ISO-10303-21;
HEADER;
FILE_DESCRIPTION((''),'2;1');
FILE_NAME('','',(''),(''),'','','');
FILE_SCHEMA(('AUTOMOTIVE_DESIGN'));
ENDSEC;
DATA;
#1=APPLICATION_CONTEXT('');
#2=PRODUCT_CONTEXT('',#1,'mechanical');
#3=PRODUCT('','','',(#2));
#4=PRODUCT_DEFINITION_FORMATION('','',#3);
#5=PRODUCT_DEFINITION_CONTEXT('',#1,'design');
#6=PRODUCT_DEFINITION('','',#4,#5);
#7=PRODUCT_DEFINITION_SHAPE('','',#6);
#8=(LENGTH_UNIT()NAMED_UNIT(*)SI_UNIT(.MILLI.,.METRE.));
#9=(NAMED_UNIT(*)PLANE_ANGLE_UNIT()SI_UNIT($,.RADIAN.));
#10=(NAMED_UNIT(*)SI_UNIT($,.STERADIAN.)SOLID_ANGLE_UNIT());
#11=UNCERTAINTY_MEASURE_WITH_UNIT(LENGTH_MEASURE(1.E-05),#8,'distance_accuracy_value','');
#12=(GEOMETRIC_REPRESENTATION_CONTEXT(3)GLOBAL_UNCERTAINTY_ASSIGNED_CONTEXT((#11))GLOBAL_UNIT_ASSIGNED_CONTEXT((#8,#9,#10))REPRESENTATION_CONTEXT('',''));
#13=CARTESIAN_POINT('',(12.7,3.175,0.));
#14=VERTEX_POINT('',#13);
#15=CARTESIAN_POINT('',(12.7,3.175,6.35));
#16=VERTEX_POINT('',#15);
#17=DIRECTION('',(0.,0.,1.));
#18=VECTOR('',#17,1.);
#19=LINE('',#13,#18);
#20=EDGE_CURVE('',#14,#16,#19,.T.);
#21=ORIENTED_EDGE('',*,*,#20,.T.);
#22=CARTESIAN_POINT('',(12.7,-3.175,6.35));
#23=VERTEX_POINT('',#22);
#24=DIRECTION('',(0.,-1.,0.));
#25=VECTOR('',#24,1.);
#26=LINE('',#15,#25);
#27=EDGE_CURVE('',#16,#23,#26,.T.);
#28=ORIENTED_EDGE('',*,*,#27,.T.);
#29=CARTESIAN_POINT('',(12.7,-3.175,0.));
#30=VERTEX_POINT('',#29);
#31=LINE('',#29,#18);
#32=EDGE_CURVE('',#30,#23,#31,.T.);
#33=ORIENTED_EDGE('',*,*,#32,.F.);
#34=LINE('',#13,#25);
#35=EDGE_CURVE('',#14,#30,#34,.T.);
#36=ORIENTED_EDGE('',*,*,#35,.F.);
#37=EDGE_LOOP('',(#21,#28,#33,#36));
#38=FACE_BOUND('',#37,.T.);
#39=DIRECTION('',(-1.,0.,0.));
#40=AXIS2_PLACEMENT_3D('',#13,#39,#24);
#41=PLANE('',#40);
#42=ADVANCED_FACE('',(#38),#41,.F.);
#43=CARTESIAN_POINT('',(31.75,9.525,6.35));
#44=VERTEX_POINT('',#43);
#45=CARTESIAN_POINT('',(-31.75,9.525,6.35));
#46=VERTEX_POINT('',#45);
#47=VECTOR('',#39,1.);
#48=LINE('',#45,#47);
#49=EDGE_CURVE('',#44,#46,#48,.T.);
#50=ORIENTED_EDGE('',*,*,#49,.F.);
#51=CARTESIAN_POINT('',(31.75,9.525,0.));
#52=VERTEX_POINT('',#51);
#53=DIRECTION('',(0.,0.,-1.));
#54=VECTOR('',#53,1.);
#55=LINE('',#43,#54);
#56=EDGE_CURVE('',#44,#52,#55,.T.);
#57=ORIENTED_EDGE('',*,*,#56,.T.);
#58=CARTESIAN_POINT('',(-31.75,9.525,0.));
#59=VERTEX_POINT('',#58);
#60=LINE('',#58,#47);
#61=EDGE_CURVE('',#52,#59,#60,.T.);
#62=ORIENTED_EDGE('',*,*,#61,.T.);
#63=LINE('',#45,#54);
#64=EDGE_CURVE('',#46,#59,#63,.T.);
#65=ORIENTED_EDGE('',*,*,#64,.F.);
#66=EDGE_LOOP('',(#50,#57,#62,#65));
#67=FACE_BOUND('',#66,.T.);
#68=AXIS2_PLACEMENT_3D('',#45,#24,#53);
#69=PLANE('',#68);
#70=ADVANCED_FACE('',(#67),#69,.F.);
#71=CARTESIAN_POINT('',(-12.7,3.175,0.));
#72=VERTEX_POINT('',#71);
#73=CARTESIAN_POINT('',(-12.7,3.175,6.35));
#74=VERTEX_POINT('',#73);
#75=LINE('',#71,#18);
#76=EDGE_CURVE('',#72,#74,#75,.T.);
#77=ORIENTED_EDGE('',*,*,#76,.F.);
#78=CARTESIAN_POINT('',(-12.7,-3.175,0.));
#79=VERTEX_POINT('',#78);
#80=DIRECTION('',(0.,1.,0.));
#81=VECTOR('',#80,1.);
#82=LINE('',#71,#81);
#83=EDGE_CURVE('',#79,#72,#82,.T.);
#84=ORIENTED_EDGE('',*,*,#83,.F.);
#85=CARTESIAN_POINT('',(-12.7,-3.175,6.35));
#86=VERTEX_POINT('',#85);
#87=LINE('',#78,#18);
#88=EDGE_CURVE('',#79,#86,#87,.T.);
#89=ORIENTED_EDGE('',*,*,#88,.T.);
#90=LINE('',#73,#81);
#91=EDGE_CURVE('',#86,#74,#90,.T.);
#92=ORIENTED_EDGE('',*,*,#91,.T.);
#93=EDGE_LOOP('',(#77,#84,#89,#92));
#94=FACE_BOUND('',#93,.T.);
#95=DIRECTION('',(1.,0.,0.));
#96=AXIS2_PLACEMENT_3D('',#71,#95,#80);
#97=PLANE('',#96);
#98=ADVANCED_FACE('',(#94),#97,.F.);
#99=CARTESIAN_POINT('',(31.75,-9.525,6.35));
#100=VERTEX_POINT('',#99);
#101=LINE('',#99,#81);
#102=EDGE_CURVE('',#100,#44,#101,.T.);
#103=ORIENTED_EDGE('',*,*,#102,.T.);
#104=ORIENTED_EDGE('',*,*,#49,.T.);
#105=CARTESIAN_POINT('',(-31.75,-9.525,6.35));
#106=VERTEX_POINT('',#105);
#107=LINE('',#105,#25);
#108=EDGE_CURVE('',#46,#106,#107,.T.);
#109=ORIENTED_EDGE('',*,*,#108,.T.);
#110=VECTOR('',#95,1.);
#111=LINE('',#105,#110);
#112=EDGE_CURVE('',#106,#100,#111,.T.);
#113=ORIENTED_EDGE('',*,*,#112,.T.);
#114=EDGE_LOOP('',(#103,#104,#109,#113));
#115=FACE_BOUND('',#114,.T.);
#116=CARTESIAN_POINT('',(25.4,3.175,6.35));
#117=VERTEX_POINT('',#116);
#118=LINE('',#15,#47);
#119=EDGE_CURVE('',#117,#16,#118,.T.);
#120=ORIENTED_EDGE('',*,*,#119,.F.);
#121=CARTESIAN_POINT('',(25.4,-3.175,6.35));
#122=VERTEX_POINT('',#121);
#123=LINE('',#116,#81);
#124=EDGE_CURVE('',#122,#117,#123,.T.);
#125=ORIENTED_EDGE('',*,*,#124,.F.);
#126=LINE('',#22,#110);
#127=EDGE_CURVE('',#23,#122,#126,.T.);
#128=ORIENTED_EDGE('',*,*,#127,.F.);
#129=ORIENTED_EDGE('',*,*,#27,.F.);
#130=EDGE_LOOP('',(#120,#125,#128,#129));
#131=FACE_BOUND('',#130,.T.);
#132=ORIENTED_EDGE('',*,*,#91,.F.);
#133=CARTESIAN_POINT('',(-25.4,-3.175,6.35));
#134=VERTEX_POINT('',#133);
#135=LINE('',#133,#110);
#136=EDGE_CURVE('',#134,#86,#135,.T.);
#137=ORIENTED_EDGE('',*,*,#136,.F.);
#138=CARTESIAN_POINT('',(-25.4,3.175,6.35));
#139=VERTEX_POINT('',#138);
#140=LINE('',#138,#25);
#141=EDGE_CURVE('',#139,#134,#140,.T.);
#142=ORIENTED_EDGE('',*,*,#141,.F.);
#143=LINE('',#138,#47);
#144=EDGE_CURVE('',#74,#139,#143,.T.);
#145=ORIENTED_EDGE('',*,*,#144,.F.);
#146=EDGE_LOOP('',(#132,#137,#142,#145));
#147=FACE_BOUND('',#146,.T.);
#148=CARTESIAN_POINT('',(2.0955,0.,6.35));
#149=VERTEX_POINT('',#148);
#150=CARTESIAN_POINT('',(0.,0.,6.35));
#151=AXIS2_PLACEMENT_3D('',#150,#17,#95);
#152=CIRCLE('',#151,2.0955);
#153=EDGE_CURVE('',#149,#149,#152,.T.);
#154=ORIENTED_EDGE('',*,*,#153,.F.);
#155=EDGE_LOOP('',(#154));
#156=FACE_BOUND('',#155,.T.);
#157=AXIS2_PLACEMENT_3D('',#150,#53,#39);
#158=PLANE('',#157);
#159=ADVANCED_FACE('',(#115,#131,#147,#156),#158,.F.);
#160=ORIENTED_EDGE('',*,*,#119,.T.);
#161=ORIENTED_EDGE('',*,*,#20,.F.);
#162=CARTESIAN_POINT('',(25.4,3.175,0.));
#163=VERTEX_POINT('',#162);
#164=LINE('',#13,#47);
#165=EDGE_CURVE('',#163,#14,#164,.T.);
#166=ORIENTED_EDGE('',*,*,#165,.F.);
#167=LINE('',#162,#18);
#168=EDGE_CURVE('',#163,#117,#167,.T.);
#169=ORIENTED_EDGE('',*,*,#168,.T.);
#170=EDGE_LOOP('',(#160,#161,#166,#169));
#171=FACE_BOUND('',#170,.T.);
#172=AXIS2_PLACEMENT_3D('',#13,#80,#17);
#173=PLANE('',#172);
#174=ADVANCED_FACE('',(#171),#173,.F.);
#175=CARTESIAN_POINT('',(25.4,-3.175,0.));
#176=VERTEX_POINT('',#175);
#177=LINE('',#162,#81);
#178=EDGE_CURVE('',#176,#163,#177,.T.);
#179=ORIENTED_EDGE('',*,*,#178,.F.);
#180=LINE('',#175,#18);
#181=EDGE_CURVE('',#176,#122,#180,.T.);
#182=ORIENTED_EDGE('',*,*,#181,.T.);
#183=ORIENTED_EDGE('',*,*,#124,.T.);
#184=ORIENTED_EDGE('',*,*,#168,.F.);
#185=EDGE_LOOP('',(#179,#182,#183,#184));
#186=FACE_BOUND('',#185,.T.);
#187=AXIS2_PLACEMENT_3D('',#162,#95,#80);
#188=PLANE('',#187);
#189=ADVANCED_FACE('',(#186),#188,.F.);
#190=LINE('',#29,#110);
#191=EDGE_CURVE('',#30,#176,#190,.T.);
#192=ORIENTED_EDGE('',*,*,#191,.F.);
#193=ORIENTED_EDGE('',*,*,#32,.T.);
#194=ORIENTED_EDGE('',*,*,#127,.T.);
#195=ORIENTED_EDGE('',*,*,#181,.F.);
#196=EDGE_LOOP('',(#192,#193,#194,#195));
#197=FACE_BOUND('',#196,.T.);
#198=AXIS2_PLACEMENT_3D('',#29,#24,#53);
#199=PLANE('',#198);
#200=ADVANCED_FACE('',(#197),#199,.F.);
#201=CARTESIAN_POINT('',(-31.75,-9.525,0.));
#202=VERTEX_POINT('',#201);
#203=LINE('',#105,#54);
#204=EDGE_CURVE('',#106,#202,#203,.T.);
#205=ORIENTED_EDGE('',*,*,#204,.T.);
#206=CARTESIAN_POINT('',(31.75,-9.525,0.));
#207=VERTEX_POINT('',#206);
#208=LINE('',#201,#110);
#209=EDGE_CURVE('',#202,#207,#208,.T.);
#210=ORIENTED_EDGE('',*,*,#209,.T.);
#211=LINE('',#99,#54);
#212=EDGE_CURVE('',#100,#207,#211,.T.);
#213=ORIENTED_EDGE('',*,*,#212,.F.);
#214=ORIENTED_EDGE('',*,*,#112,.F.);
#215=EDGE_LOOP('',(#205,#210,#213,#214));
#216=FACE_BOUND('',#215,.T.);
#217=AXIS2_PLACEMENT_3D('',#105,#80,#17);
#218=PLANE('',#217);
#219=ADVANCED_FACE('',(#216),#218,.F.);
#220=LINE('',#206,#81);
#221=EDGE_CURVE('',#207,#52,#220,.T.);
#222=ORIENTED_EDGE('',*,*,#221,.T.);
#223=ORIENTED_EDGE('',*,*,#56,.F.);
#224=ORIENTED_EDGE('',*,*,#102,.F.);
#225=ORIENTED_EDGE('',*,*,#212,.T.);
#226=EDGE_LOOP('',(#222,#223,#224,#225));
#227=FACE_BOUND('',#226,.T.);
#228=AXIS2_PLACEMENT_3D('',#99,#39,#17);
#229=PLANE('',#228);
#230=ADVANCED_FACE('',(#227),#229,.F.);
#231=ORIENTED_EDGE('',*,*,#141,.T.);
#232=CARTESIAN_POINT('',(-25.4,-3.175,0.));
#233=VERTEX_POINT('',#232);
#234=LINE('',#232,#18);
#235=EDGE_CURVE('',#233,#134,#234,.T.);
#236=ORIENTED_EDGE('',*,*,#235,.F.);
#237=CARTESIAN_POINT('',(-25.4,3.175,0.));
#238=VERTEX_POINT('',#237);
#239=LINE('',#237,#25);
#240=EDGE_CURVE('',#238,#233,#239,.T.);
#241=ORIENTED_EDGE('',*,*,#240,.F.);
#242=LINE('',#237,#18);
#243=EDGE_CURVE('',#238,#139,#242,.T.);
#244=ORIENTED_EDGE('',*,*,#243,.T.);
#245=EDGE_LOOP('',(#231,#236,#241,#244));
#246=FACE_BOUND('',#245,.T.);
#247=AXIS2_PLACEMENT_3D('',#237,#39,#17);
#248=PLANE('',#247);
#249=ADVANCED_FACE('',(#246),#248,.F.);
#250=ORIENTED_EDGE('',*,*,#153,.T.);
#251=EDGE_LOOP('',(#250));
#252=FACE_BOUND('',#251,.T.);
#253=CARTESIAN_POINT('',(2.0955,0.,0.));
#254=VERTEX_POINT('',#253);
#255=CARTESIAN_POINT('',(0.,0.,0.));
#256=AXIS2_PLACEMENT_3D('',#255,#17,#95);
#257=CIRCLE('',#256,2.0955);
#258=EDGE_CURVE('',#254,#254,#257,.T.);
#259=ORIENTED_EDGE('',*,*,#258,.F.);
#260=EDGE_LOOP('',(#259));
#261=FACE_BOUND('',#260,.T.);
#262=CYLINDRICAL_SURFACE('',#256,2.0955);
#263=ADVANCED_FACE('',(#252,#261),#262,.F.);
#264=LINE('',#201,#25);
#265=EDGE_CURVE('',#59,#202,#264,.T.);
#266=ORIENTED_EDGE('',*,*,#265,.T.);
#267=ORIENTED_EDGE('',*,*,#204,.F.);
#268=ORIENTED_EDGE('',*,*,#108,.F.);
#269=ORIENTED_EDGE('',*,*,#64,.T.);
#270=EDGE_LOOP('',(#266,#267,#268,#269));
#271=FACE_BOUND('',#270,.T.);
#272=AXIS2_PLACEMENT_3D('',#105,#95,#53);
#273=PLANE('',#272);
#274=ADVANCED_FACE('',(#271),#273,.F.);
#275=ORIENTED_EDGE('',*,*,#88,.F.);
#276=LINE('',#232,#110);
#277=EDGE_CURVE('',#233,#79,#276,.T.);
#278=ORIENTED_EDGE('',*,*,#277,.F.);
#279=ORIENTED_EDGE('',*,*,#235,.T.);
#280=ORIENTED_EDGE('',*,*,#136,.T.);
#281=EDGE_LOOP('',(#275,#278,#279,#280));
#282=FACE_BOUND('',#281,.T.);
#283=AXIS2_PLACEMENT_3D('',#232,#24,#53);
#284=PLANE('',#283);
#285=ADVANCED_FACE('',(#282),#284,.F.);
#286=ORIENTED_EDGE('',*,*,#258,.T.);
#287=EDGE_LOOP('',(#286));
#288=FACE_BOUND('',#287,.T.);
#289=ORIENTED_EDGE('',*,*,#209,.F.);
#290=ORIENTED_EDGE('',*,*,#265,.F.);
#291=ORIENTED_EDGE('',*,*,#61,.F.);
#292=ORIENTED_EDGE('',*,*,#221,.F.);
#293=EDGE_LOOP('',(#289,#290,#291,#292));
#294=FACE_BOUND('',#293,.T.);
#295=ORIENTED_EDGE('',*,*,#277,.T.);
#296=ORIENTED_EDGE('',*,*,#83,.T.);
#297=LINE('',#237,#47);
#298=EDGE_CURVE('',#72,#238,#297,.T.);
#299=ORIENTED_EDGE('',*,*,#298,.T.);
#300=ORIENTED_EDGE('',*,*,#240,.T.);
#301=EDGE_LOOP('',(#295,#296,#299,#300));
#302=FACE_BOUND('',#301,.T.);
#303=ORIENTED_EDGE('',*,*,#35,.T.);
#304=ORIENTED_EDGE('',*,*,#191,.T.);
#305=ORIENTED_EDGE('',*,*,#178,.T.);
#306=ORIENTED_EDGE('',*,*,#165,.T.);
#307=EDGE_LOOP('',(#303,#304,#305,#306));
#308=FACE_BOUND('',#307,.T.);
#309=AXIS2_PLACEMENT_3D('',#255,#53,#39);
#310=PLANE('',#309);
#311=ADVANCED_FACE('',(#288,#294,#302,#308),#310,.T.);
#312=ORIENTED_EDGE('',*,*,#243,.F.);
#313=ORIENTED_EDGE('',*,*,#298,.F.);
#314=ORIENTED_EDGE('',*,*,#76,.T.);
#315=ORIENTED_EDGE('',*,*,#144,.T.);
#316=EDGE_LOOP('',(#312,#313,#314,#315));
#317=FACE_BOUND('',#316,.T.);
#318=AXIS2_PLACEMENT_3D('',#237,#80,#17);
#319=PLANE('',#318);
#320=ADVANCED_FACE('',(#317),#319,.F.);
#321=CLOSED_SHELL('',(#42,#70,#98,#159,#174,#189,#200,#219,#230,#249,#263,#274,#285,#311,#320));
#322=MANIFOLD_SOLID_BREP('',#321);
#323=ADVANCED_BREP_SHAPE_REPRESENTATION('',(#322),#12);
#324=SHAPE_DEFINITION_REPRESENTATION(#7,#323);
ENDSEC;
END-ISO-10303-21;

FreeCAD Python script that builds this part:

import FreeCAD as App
import Part
import Sketcher
from FreeCAD import Vector
Q = App.Units.Quantity

doc = App.newDocument("Part")
body = doc.addObject("PartDesign::Body", "Body")

# Sketch on XY plane
sketch1 = doc.addObject("Sketcher::SketchObject", "Sketch")
body.addObject(sketch1)
sketch1.AttachmentSupport = (doc.XY_Plane, [""])
sketch1.MapMode = "FlatFace"
sketch1.addGeometry([
    Part.LineSegment(Vector(-31.75, 9.525, 0), Vector(-31.75, -9.525, 0)),
    Part.LineSegment(Vector(-31.75, -9.525, 0), Vector(31.75, -9.525, 0)),
    Part.LineSegment(Vector(31.75, -9.525, 0), Vector(31.75, 9.525, 0)),
    Part.LineSegment(Vector(31.75, 9.525, 0), Vector(-31.75, 9.525, 0)),
], False)
sketch1.addConstraint([
    Sketcher.Constraint("Coincident", 0, 2, 1, 1),
    Sketcher.Constraint("Coincident", 1, 2, 2, 1),
    Sketcher.Constraint("Coincident", 2, 2, 3, 1),
    Sketcher.Constraint("Coincident", 3, 2, 0, 1),
    Sketcher.Constraint("Vertical", 0),
    Sketcher.Constraint("Horizontal", 1),
    Sketcher.Constraint("Vertical", 2),
    Sketcher.Constraint("Horizontal", 3),
    Sketcher.Constraint("Symmetric", 0, 2, 2, 2, -1, 1),
    Sketcher.Constraint("DistanceX", 1, 1, 1, 2, Q("2.5 in")),
    Sketcher.Constraint("DistanceY", 0, 2, 0, 1, Q("0.75 in")),
])
pad1 = doc.addObject("PartDesign::Pad", "Pad")
body.addObject(pad1)
pad1.Profile = sketch1
pad1.Length = Q("0.25 in")

# Sketch on XY plane
sketch2 = doc.addObject("Sketcher::SketchObject", "Sketch001")
body.addObject(sketch2)
sketch2.AttachmentSupport = (doc.XY_Plane, [""])
sketch2.MapMode = "FlatFace"
sketch2.AttachmentOffset = App.Placement(Vector(0, 0, 0.25 * 25.4), App.Rotation())
sketch2.addGeometry([
    Part.Circle(Vector(0, 0, 0), Vector(0, 0, 1), 2.0955),  # 0
    Part.LineSegment(Vector(-25.4, 3.175, 0), Vector(-25.4, -3.175, 0)),  # 1
    Part.LineSegment(Vector(-25.4, -3.175, 0), Vector(-12.7, -3.175, 0)),  # 2
    Part.LineSegment(Vector(-12.7, -3.175, 0), Vector(-12.7, 3.175, 0)),  # 3
    Part.LineSegment(Vector(-12.7, 3.175, 0), Vector(-25.4, 3.175, 0)),  # 4
    Part.LineSegment(Vector(12.7, 3.175, 0), Vector(12.7, -3.175, 0)),  # 5
    Part.LineSegment(Vector(12.7, -3.175, 0), Vector(25.4, -3.175, 0)),  # 6
    Part.LineSegment(Vector(25.4, -3.175, 0), Vector(25.4, 3.175, 0)),  # 7
    Part.LineSegment(Vector(25.4, 3.175, 0), Vector(12.7, 3.175, 0)),  # 8
], False)
sketch2.addConstraint([
    Sketcher.Constraint("Coincident", 1, 2, 2, 1),
    Sketcher.Constraint("Coincident", 2, 2, 3, 1),
    Sketcher.Constraint("Coincident", 3, 2, 4, 1),
    Sketcher.Constraint("Coincident", 4, 2, 1, 1),
    Sketcher.Constraint("Coincident", 5, 2, 6, 1),
    Sketcher.Constraint("Coincident", 6, 2, 7, 1),
    Sketcher.Constraint("Coincident", 7, 2, 8, 1),
    Sketcher.Constraint("Coincident", 8, 2, 5, 1),
    Sketcher.Constraint("Vertical", 1),
    Sketcher.Constraint("Horizontal", 2),
    Sketcher.Constraint("Vertical", 3),
    Sketcher.Constraint("Horizontal", 4),
    Sketcher.Constraint("Vertical", 5),
    Sketcher.Constraint("Horizontal", 6),
    Sketcher.Constraint("Vertical", 7),
    Sketcher.Constraint("Horizontal", 8),
    Sketcher.Constraint("Coincident", 0, 3, -1, 1),
    Sketcher.Constraint("Symmetric", 3, 2, 5, 2, -1, 1),
    Sketcher.Constraint("Symmetric", 1, 2, 7, 2, -1, 1),
    Sketcher.Constraint("Horizontal", 2, 2, 5, 2),
    Sketcher.Constraint("Diameter", 0, Q("0.165 in")),
    Sketcher.Constraint("DistanceX", 2, 1, 2, 2, Q("0.5 in")),
    Sketcher.Constraint("DistanceX", 1, 2, -1, 1, Q("1 in")),
    Sketcher.Constraint("DistanceY", 1, 2, 1, 1, Q("0.25 in")),
])
pocket1 = doc.addObject("PartDesign::Pocket", "Pocket")
body.addObject(pocket1)
pocket1.Profile = sketch2
pocket1.Length = Q("0.25 in")

doc.recompute()
